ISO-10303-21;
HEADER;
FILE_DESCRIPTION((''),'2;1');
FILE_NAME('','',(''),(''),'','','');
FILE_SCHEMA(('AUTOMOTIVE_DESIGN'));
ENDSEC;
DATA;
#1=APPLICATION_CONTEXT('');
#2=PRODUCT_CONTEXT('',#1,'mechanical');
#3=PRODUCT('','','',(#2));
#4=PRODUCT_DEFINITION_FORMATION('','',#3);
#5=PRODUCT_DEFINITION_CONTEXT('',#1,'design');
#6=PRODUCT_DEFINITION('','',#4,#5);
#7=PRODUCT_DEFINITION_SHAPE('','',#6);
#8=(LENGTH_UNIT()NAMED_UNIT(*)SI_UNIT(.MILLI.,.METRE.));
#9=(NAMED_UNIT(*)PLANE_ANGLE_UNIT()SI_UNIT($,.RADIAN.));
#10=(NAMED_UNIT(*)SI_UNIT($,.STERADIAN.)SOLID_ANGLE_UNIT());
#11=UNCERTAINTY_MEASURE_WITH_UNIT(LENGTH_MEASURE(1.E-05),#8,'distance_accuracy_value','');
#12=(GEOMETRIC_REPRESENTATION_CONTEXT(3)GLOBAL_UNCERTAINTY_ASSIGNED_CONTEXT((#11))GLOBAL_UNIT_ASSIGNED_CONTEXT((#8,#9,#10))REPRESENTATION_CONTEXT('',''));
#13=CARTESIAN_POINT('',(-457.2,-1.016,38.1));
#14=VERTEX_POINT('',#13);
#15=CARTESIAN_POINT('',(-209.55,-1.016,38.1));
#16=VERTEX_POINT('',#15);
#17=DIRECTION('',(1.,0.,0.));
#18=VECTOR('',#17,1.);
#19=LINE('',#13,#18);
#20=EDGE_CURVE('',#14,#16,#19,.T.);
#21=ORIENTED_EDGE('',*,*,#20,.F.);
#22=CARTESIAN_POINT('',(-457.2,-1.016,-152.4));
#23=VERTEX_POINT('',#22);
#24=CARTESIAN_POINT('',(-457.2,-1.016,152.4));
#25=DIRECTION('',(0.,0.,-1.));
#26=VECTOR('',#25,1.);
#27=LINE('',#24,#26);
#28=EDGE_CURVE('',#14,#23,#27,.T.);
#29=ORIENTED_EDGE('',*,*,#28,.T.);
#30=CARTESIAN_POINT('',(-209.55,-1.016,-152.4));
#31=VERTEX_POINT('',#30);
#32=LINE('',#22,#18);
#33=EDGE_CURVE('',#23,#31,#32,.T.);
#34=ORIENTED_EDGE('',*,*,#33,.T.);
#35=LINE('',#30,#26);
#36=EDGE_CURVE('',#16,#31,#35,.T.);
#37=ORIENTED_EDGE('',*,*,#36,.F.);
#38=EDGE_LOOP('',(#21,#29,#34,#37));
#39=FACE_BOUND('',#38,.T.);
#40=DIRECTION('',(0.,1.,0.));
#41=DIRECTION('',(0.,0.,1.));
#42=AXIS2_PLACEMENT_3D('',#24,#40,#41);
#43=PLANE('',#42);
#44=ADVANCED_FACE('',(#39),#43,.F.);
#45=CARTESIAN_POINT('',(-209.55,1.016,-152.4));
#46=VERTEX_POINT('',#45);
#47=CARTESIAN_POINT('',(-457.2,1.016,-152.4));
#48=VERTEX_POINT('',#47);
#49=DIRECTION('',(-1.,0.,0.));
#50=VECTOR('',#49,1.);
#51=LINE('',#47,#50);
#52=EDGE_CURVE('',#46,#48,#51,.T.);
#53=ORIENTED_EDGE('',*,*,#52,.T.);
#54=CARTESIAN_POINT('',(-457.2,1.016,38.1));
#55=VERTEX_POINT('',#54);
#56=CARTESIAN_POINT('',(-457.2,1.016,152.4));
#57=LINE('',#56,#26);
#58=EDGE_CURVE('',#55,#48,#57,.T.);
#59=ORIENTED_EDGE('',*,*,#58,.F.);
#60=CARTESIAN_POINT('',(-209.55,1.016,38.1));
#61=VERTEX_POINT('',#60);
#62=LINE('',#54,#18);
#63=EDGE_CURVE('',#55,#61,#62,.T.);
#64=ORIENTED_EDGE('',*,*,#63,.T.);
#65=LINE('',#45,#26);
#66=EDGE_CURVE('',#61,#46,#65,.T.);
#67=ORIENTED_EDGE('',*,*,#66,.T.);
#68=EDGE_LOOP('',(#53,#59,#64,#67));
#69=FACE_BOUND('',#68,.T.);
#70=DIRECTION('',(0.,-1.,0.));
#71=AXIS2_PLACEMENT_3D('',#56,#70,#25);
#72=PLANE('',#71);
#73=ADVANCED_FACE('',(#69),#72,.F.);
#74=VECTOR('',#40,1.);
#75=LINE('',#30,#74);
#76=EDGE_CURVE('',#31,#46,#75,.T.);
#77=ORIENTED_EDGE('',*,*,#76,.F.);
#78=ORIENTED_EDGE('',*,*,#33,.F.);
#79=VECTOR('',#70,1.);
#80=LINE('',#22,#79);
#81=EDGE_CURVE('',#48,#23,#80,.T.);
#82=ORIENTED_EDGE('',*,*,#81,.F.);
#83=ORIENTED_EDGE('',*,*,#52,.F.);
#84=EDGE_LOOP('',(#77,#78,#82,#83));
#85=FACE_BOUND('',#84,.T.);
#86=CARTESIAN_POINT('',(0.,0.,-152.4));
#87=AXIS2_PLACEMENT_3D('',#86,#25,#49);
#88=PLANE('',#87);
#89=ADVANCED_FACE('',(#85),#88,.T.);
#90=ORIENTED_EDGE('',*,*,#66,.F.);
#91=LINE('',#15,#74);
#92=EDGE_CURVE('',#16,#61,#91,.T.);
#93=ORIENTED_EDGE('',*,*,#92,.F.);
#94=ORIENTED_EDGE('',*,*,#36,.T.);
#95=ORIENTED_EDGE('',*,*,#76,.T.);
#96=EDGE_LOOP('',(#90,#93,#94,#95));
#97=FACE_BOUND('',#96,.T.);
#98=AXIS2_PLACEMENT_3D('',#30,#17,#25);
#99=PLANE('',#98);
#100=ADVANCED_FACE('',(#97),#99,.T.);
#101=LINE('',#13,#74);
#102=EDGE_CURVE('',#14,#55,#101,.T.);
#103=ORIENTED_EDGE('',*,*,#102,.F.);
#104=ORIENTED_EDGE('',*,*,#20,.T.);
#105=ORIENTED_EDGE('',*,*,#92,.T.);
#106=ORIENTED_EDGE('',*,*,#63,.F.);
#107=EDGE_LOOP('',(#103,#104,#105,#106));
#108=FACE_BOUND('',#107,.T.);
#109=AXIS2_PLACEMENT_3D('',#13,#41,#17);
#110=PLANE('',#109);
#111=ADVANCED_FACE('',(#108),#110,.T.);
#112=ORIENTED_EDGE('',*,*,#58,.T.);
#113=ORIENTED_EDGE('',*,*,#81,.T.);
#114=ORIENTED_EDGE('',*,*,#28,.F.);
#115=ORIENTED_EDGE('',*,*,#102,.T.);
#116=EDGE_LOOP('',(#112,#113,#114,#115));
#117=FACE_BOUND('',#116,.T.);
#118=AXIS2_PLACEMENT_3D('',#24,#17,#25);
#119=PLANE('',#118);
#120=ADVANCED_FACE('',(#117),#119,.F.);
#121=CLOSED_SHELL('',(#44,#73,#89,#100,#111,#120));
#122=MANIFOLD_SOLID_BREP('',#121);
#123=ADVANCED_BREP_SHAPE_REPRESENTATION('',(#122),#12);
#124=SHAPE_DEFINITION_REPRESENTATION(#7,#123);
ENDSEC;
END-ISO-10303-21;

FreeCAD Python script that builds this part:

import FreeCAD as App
import Part
import Sketcher
from FreeCAD import Vector
Q = App.Units.Quantity


def add_polygon(sketch, points):
    """Adds a closed chain of lines whose ends are joined by coincident constraints."""
    first, n = sketch.GeometryCount, len(points)
    for a, b in zip(points, points[1:] + points[:1]):
        sketch.addGeometry(Part.LineSegment(App.Vector(*a, 0), App.Vector(*b, 0)), False)
    for i in range(n):
        sketch.addConstraint(Sketcher.Constraint("Coincident", first + i, 2, first + (i + 1) % n, 1))

doc = App.newDocument("Part")
body = doc.addObject("PartDesign::Body", "Body")

# Sketch on XY plane
sketch1 = body.newObject("Sketcher::SketchObject", "Sketch")
sketch1.AttachmentSupport = (doc.getObject("XY_Plane"), [""])
sketch1.MapMode = "FlatFace"
add_polygon(sketch1, [(-457.2, 1), (-457.2, -1), (457.2, -1), (457.2, 1)])  # lines 0-3
sketch1.addConstraint(Sketcher.Constraint("Vertical", 0))
sketch1.addConstraint(Sketcher.Constraint("Horizontal", 1))
sketch1.addConstraint(Sketcher.Constraint("Vertical", 2))
sketch1.addConstraint(Sketcher.Constraint("Horizontal", 3))
sketch1.addConstraint(Sketcher.Constraint("Symmetric", 0, 2, 2, 2, -1, 1))
sketch1.addConstraint(Sketcher.Constraint("DistanceX", 1, 1, 1, 2, Q("36 in")))
sketch1.addConstraint(Sketcher.Constraint("DistanceY", 0, 2, 0, 1, Q("0.08 in")))
pad1 = body.newObject("PartDesign::Pad", "Pad")
pad1.Profile = sketch1
pad1.Length = Q("12 in")
pad1.Midplane = True

# Sketch on XZ plane
sketch2 = body.newObject("Sketcher::SketchObject", "Sketch001")
sketch2.AttachmentSupport = (doc.getObject("XZ_Plane"), [""])
sketch2.MapMode = "FlatFace"
sketch2.AttachmentOffset = App.Placement(Vector(0, 0, -0.04 * 25.4), App.Rotation())
add_polygon(sketch2, [(-555, -250), (-555, 250), (555, 250), (555, -250)])  # lines 0-3
add_polygon(sketch2, [(-210, 38), (-457, 38), (-457, -152), (-210, -152)])  # lines 4-7
sketch2.addConstraint(Sketcher.Constraint("Vertical", 0))
sketch2.addConstraint(Sketcher.Constraint("Horizontal", 1))
sketch2.addConstraint(Sketcher.Constraint("Vertical", 2))
sketch2.addConstraint(Sketcher.Constraint("Horizontal", 3))
sketch2.addConstraint(Sketcher.Constraint("Horizontal", 4))
sketch2.addConstraint(Sketcher.Constraint("Vertical", 5))
sketch2.addConstraint(Sketcher.Constraint("Horizontal", 6))
sketch2.addConstraint(Sketcher.Constraint("Vertical", 7))
sketch2.addConstraint(Sketcher.Constraint("Symmetric", 0, 2, 2, 2, -1, 1))
sketch2.addConstraint(Sketcher.Constraint("DistanceY", 5, 2, 5, 1, Q("7.5 in")))
sketch2.addConstraint(Sketcher.Constraint("DistanceX", 4, 2, -1, 1, Q("18 in")))
sketch2.addConstraint(Sketcher.Constraint("DistanceY", 5, 2, -1, 1, Q("6 in")))
sketch2.addConstraint(Sketcher.Constraint("DistanceX", 4, 2, 4, 1, Q("9.75 in")))
sketch2.addConstraint(Sketcher.Constraint("DistanceX", 1, 1, 1, 2, 1109.172))
sketch2.addConstraint(Sketcher.Constraint("DistanceY", 0, 1, 0, 2, 499.572))
pocket1 = body.newObject("PartDesign::Pocket", "Pocket")
pocket1.Profile = sketch2
pocket1.Type = "ThroughAll"
pocket1.Reversed = True

doc.recompute()
